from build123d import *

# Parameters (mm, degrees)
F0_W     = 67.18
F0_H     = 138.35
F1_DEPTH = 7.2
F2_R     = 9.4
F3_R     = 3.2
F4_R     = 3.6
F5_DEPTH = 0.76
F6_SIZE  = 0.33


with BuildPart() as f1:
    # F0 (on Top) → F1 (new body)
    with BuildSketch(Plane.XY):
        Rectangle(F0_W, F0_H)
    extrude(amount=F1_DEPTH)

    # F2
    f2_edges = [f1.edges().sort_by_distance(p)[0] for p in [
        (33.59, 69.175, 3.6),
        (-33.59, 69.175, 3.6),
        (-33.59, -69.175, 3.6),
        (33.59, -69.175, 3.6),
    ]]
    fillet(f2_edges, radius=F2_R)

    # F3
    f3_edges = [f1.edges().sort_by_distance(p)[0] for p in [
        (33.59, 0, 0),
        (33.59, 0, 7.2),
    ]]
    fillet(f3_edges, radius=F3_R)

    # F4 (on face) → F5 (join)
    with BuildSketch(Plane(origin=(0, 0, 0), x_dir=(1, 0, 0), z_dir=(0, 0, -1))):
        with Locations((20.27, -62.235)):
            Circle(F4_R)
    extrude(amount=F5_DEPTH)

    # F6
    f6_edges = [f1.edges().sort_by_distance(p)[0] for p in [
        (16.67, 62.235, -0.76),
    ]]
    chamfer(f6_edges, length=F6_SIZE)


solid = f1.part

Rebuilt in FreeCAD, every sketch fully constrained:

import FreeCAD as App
import Part
import Sketcher
Q = App.Units.Quantity


def edges_at(feature, points):
    """Names of the edges that pass closest to the given points."""
    edges = feature.Shape.Edges
    near = lambda p: min(range(len(edges)), key=lambda i: edges[i].distToShape(Part.Vertex(*p))[0])
    return sorted({f"Edge{near(p) + 1}" for p in points})

doc = App.newDocument("Part")
body = doc.addObject("PartDesign::Body", "Body")

# Sketch on XY plane
sketch1 = body.newObject("Sketcher::SketchObject", "Sketch")
sketch1.AttachmentSupport = (doc.getObject("XY_Plane"), [""])
sketch1.MapMode = "FlatFace"
sketch1.addGeometry([
    Part.LineSegment(App.Vector(-34, 69, 0), App.Vector(-34, -69, 0)),
    Part.LineSegment(App.Vector(-34, -69, 0), App.Vector(34, -69, 0)),
    Part.LineSegment(App.Vector(34, -69, 0), App.Vector(34, 69, 0)),
    Part.LineSegment(App.Vector(34, 69, 0), App.Vector(-34, 69, 0)),
], False)
sketch1.addConstraint([
    Sketcher.Constraint("Coincident", 0, 2, 1, 1),
    Sketcher.Constraint("Coincident", 1, 2, 2, 1),
    Sketcher.Constraint("Coincident", 2, 2, 3, 1),
    Sketcher.Constraint("Coincident", 3, 2, 0, 1),
    Sketcher.Constraint("Vertical", 0),
    Sketcher.Constraint("Horizontal", 1),
    Sketcher.Constraint("Vertical", 2),
    Sketcher.Constraint("Horizontal", 3),
    Sketcher.Constraint("Symmetric", 0, 2, 2, 2, -1, 1),
    Sketcher.Constraint("DistanceX", 1, 1, 1, 2, Q("67.18 mm")),
    Sketcher.Constraint("DistanceY", 0, 2, 0, 1, Q("138.35 mm")),
])
pad1 = body.newObject("PartDesign::Pad", "Pad")
pad1.Profile = sketch1
pad1.Length = 7.2
doc.recompute()

fillet = body.newObject("PartDesign::Fillet", "Fillet")
fillet.Base = (pad1, edges_at(pad1, [
    (33.59, 69.175, 3.6),
    (-33.59, 69.175, 3.6),
    (-33.59, -69.175, 3.6),
    (33.59, -69.175, 3.6),
]))
fillet.Radius = 9.4
doc.recompute()

fillet2 = body.newObject("PartDesign::Fillet", "Fillet001")
fillet2.Base = (fillet, edges_at(fillet, [(33.59, 0, 0), (33.59, 0, 7.2)]))
fillet2.Radius = 3.2

# Sketch on XY plane
sketch2 = body.newObject("Sketcher::SketchObject", "Sketch001")
sketch2.AttachmentSupport = (doc.getObject("XY_Plane"), [""])
sketch2.MapMode = "FlatFace"
sketch2.addGeometry(Part.Circle(App.Vector(20.3, 62.2, 0), App.Vector(0, 0, 1), 3.6), False)
sketch2.addConstraint([
    Sketcher.Constraint("Diameter", 0, Q("7.2 mm")),
    Sketcher.Constraint("DistanceX", -1, 1, 0, 3, Q("20.27 mm")),
    Sketcher.Constraint("DistanceY", -1, 1, 0, 3, Q("62.235 mm")),
])
pad2 = body.newObject("PartDesign::Pad", "Pad001")
pad2.Profile = sketch2
pad2.Length = 0.76
pad2.Reversed = True
doc.recompute()

chamfer = body.newObject("PartDesign::Chamfer", "Chamfer")
chamfer.Base = (pad2, edges_at(pad2, [(16.67, 62.235, -0.76)]))
chamfer.Size = 0.33

doc.recompute()
